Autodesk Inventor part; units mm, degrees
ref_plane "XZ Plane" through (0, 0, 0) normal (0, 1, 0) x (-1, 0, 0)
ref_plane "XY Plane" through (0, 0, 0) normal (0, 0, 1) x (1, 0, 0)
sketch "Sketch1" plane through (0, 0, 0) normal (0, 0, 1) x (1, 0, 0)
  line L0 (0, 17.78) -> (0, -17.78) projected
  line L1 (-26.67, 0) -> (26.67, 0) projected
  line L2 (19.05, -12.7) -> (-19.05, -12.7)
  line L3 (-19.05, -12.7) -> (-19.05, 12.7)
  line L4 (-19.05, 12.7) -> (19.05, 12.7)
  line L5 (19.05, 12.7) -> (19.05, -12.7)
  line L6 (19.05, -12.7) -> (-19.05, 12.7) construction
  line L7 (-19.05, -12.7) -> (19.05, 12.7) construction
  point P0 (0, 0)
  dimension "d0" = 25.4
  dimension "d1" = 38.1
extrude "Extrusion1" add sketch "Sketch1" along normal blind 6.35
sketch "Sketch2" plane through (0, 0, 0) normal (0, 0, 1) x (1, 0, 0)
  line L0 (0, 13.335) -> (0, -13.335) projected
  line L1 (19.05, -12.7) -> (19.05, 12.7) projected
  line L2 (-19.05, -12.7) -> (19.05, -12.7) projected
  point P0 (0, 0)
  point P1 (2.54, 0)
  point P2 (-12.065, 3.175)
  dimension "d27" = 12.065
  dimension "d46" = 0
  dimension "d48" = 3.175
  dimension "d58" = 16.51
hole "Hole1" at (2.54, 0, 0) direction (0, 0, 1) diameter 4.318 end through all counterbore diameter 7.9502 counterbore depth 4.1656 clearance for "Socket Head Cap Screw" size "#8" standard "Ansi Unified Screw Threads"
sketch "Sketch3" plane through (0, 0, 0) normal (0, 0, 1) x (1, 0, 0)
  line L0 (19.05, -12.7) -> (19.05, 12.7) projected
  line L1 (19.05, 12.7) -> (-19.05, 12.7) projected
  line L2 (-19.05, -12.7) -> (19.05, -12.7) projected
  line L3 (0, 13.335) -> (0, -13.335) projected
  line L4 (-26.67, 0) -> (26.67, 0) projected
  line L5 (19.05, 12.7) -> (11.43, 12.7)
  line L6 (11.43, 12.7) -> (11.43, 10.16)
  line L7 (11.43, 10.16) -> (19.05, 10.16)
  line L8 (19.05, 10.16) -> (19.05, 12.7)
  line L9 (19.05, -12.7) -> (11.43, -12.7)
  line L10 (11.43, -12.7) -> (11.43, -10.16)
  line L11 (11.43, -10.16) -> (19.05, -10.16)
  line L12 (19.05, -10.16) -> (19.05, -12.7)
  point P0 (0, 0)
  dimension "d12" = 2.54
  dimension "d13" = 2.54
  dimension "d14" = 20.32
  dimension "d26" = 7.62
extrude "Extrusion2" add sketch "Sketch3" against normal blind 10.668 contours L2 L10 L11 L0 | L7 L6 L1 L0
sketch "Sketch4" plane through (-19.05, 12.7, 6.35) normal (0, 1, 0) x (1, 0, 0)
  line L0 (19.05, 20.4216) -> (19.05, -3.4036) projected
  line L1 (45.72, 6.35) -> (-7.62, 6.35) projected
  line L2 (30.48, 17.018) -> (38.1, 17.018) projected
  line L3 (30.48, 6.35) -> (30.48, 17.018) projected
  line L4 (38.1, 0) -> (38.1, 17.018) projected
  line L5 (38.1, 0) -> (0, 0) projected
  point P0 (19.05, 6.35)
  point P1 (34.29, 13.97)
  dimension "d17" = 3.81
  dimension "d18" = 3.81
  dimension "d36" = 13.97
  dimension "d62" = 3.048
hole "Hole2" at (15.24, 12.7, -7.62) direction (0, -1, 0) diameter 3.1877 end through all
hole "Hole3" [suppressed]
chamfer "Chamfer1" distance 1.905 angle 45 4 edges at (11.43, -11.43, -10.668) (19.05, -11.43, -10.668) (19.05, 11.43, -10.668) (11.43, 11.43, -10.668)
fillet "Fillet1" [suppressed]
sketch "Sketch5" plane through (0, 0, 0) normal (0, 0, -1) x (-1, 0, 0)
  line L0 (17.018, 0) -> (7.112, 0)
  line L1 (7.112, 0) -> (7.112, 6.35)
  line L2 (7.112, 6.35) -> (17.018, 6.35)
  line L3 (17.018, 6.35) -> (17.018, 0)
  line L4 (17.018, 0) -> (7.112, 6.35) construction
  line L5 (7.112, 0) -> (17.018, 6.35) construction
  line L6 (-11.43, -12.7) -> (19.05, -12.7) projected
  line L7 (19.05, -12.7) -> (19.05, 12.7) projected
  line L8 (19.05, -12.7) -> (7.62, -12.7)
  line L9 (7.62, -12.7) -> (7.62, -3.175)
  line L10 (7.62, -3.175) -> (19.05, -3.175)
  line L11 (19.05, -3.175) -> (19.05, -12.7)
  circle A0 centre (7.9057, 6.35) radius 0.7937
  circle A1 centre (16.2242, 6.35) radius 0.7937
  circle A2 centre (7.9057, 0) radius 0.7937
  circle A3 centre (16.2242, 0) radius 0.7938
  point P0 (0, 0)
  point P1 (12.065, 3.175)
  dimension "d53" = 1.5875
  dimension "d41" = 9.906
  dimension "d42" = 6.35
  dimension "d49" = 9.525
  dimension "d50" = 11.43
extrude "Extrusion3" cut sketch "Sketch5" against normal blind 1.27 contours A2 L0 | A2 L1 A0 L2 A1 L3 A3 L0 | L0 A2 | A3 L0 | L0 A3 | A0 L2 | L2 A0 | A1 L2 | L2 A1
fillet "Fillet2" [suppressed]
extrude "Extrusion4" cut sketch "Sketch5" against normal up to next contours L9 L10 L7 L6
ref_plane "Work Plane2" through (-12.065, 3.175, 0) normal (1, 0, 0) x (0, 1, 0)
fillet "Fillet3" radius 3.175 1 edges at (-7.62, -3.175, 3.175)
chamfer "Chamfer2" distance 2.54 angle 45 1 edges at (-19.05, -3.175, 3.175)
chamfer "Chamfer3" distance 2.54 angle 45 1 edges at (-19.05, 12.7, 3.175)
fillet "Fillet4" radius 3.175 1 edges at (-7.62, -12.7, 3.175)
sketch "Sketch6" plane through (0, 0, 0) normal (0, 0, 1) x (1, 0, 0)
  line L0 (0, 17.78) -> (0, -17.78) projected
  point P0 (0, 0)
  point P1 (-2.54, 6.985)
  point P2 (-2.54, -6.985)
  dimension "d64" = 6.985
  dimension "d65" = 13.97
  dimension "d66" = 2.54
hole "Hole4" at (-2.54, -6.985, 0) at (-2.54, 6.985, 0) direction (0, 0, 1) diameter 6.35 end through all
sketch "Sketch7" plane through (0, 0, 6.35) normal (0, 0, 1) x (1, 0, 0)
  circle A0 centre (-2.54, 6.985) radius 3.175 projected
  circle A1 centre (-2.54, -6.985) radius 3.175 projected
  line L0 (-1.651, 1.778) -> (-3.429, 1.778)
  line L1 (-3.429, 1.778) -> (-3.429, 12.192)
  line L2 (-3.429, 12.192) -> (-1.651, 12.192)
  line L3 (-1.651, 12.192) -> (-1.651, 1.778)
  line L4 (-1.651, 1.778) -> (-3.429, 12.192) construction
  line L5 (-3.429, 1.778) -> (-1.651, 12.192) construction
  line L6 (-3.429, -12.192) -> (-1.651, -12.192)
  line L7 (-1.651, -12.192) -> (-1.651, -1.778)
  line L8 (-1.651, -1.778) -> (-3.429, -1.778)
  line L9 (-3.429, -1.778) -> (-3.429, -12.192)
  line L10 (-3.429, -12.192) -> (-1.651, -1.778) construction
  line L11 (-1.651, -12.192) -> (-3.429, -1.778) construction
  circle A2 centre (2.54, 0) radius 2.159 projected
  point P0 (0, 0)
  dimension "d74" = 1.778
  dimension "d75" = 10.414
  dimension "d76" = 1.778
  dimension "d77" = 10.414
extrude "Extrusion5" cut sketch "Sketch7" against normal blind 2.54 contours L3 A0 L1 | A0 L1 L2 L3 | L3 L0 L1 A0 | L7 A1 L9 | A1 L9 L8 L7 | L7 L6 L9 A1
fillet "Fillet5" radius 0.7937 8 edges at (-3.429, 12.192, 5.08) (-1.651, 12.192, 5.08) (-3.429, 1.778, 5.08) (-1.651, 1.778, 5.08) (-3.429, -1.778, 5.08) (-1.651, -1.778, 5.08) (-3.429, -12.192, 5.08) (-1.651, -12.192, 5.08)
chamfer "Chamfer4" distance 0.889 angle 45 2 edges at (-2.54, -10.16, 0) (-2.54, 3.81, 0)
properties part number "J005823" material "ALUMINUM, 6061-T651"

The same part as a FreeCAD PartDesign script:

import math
import FreeCAD as App
import Part
import Sketcher
Q = App.Units.Quantity


def edges_at(feature, points):
    """Names of the edges that pass closest to the given points."""
    edges = feature.Shape.Edges
    near = lambda p: min(range(len(edges)), key=lambda i: edges[i].distToShape(Part.Vertex(*p))[0])
    return sorted({f"Edge{near(p) + 1}" for p in points})


def add_polygon(sketch, points):
    """Adds a closed chain of lines whose ends are joined by coincident constraints."""
    first, n = sketch.GeometryCount, len(points)
    for a, b in zip(points, points[1:] + points[:1]):
        sketch.addGeometry(Part.LineSegment(App.Vector(*a, 0), App.Vector(*b, 0)), False)
    for i in range(n):
        sketch.addConstraint(Sketcher.Constraint("Coincident", first + i, 2, first + (i + 1) % n, 1))

doc = App.newDocument("Part")
body = doc.addObject("PartDesign::Body", "Body")

# Sketch on XY plane
sketch1 = body.newObject("Sketcher::SketchObject", "Sketch")
sketch1.AttachmentSupport = (doc.getObject("XY_Plane"), [""])
sketch1.MapMode = "FlatFace"
add_polygon(sketch1, [(19, 13), (-19, 13), (-19, -13), (19, -13)])  # lines 0-3
sketch1.addConstraint(Sketcher.Constraint("Horizontal", 0))
sketch1.addConstraint(Sketcher.Constraint("Vertical", 1))
sketch1.addConstraint(Sketcher.Constraint("Horizontal", 2))
sketch1.addConstraint(Sketcher.Constraint("Vertical", 3))
sketch1.addConstraint(Sketcher.Constraint("Symmetric", 0, 2, 2, 2, -1, 1))
sketch1.addConstraint(Sketcher.Constraint("DistanceY", 1, 2, 1, 1, Q("1 in")))
sketch1.addConstraint(Sketcher.Constraint("DistanceX", 0, 2, 0, 1, Q("1.5 in")))
pad1 = body.newObject("PartDesign::Pad", "Pad")
pad1.Profile = sketch1
pad1.Length = Q("0.25 in")

# Sketch on XY plane
sketch2 = body.newObject("Sketcher::SketchObject", "Sketch001")
sketch2.AttachmentSupport = (doc.getObject("XY_Plane"), [""])
sketch2.MapMode = "FlatFace"
sketch2.addGeometry(Part.Circle(App.Vector(2.5, 0, 0), App.Vector(0, 0, 1), 2.2), False)
sketch2.addConstraint(Sketcher.Constraint("PointOnObject", 0, 3, -1))
sketch2.addConstraint(Sketcher.Constraint("Diameter", 0, Q("0.17 in")))
sketch2.addConstraint(Sketcher.Constraint("DistanceX", -1, 1, 0, 3, Q("0.1 in")))
doc.recompute()
hole = body.newObject("PartDesign::Hole", "Hole")
hole.Profile = sketch2
hole.ThreadType = "None"
hole.Diameter = Q("0.17 in")
hole.DepthType = "ThroughAll"
hole.HoleCutType = "Counterbore"
hole.HoleCutDiameter = Q("0.313 in")
hole.HoleCutDepth = Q("0.164 in")
hole.Reversed = True

# Sketch on XY plane
sketch3 = body.newObject("Sketcher::SketchObject", "Sketch002")
sketch3.AttachmentSupport = (doc.getObject("XY_Plane"), [""])
sketch3.MapMode = "FlatFace"
add_polygon(sketch3, [(11.4, -12.7), (19.1, -12.7), (19.1, -10.2), (11.4, -10.2)])  # lines 0-3
add_polygon(sketch3, [(11.4, 10.2), (19.1, 10.2), (19.1, 12.7), (11.4, 12.7)])  # lines 4-7
sketch3.addConstraint(Sketcher.Constraint("Horizontal", 0))
sketch3.addConstraint(Sketcher.Constraint("Vertical", 1))
sketch3.addConstraint(Sketcher.Constraint("Horizontal", 2))
sketch3.addConstraint(Sketcher.Constraint("Vertical", 3))
sketch3.addConstraint(Sketcher.Constraint("Horizontal", 4))
sketch3.addConstraint(Sketcher.Constraint("Vertical", 5))
sketch3.addConstraint(Sketcher.Constraint("Horizontal", 6))
sketch3.addConstraint(Sketcher.Constraint("Vertical", 7))
sketch3.addConstraint(Sketcher.Constraint("Symmetric", 1, 2, 4, 2, -1))
sketch3.addConstraint(Sketcher.Constraint("Symmetric", 3, 2, 6, 2, -1))
sketch3.addConstraint(Sketcher.Constraint("DistanceX", 0, 1, 0, 2, Q("0.3 in")))
sketch3.addConstraint(Sketcher.Constraint("DistanceY", 1, 1, 1, 2, Q("0.1 in")))
sketch3.addConstraint(Sketcher.Constraint("DistanceY", 1, 2, 4, 2, Q("0.8 in")))
sketch3.addConstraint(Sketcher.Constraint("DistanceX", -1, 1, 0, 2, Q("0.75 in")))
pad2 = body.newObject("PartDesign::Pad", "Pad001")
pad2.Profile = sketch3
pad2.Length = Q("0.42 in")
pad2.Reversed = True

# Sketch on XZ plane
sketch4 = body.newObject("Sketcher::SketchObject", "Sketch003")
sketch4.AttachmentSupport = (doc.getObject("XZ_Plane"), [""])
sketch4.MapMode = "FlatFace"
sketch4.AttachmentOffset = App.Placement(App.Vector(0, 0, -0.5 * 25.4), App.Rotation())
sketch4.addGeometry(Part.Circle(App.Vector(15.2, -7.6, 0), App.Vector(0, 0, 1), 1.6), False)
sketch4.addConstraint(Sketcher.Constraint("Diameter", 0, Q("0.1255 in")))
sketch4.addConstraint(Sketcher.Constraint("DistanceX", -1, 1, 0, 3, Q("0.6 in")))
sketch4.addConstraint(Sketcher.Constraint("DistanceY", 0, 3, -1, 1, Q("0.3 in")))
doc.recompute()
hole2 = body.newObject("PartDesign::Hole", "Hole001")
hole2.Profile = sketch4
hole2.ThreadType = "None"
hole2.Diameter = Q("0.1255 in")
hole2.DepthType = "ThroughAll"
hole2.Reversed = True
doc.recompute()

chamfer = body.newObject("PartDesign::Chamfer", "Chamfer")
chamfer.Base = (hole2, edges_at(hole2, [
    (11.43, -11.43, -10.668),
    (19.05, -11.43, -10.668),
    (19.05, 11.43, -10.668),
    (11.43, 11.43, -10.668),
]))
chamfer.Size = Q("0.075 in")

# Sketch on XY plane
sketch5 = body.newObject("Sketcher::SketchObject", "Sketch004")
sketch5.AttachmentSupport = (doc.getObject("XY_Plane"), [""])
sketch5.MapMode = "FlatFace"
sketch5.addGeometry(Part.ArcOfCircle(Part.Circle(App.Vector(-7.9, 0, 0), App.Vector(0, 0, 1), 0.8), math.radians(180), math.radians(360)), False)
sketch5.addGeometry(Part.LineSegment(App.Vector(-8.7, 0, 0), App.Vector(-15.4, 0, 0)), False)
sketch5.addGeometry(Part.ArcOfCircle(Part.Circle(App.Vector(-16.2, 0, 0), App.Vector(0, 0, 1), 0.8), math.radians(180), math.radians(360)), False)
sketch5.addGeometry(Part.LineSegment(App.Vector(-17, 0, 0), App.Vector(-17, 6.3, 0)), False)
sketch5.addGeometry(Part.ArcOfCircle(Part.Circle(App.Vector(-16.2, 6.3, 0), App.Vector(0, 0, 1), 0.8), math.radians(0), math.radians(180)), False)
sketch5.addGeometry(Part.LineSegment(App.Vector(-15.4, 6.3, 0), App.Vector(-8.7, 6.3, 0)), False)
sketch5.addGeometry(Part.ArcOfCircle(Part.Circle(App.Vector(-7.9, 6.3, 0), App.Vector(0, 0, 1), 0.8), math.radians(0), math.radians(180)), False)
sketch5.addGeometry(Part.LineSegment(App.Vector(-7.1, 6.3, 0), App.Vector(-7.1, 0, 0)), False)
sketch5.addConstraint(Sketcher.Constraint("Coincident", 0, 1, 1, 1))
sketch5.addConstraint(Sketcher.Constraint("Coincident", 1, 2, 2, 2))
sketch5.addConstraint(Sketcher.Constraint("Tangent", 2, 1, 3, 1))
sketch5.addConstraint(Sketcher.Constraint("Tangent", 3, 2, 4, 2))
sketch5.addConstraint(Sketcher.Constraint("Coincident", 4, 1, 5, 1))
sketch5.addConstraint(Sketcher.Constraint("Coincident", 5, 2, 6, 2))
sketch5.addConstraint(Sketcher.Constraint("Tangent", 6, 1, 7, 1))
sketch5.addConstraint(Sketcher.Constraint("Tangent", 7, 2, 0, 2))
sketch5.addConstraint(Sketcher.Constraint("Horizontal", 1))
sketch5.addConstraint(Sketcher.Constraint("Vertical", 3))
sketch5.addConstraint(Sketcher.Constraint("Horizontal", 5))
sketch5.addConstraint(Sketcher.Constraint("Vertical", 7))
sketch5.addConstraint(Sketcher.Constraint("Equal", 0, 2))
sketch5.addConstraint(Sketcher.Constraint("Equal", 2, 4))
sketch5.addConstraint(Sketcher.Constraint("Equal", 4, 6))
sketch5.addConstraint(Sketcher.Constraint("PointOnObject", 0, 3, -1))
sketch5.addConstraint(Sketcher.Constraint("PointOnObject", 2, 3, -1))
sketch5.addConstraint(Sketcher.Constraint("PointOnObject", 0, 1, -1))
sketch5.addConstraint(Sketcher.Constraint("Horizontal", 4, 3, 6, 3))
sketch5.addConstraint(Sketcher.Constraint("Horizontal", 3, 2, 4, 1))
sketch5.addConstraint(Sketcher.Constraint("Radius", 0, Q("0.031248 in")))
sketch5.addConstraint(Sketcher.Constraint("DistanceY", 3, 1, 3, 2, Q("0.25 in")))
sketch5.addConstraint(Sketcher.Constraint("DistanceX", 1, 2, 1, 1, Q("0.265 in")))
sketch5.addConstraint(Sketcher.Constraint("DistanceX", 2, 1, -1, 1, Q("0.67 in")))
pocket1 = body.newObject("PartDesign::Pocket", "Pocket")
pocket1.Profile = sketch5
pocket1.Length = Q("0.05 in")
pocket1.Reversed = True

# Sketch on XY plane
sketch6 = body.newObject("Sketcher::SketchObject", "Sketch005")
sketch6.AttachmentSupport = (doc.getObject("XY_Plane"), [""])
sketch6.MapMode = "FlatFace"
add_polygon(sketch6, [(-8, -3), (-8, -13), (-19, -13), (-19, -3)])  # lines 0-3
sketch6.addConstraint(Sketcher.Constraint("Vertical", 0))
sketch6.addConstraint(Sketcher.Constraint("Horizontal", 1))
sketch6.addConstraint(Sketcher.Constraint("Vertical", 2))
sketch6.addConstraint(Sketcher.Constraint("Horizontal", 3))
sketch6.addConstraint(Sketcher.Constraint("DistanceX", 1, 2, 1, 1, Q("0.45 in")))
sketch6.addConstraint(Sketcher.Constraint("DistanceY", 0, 2, 0, 1, Q("0.375 in")))
sketch6.addConstraint(Sketcher.Constraint("DistanceX", 0, 2, -1, 1, Q("0.3 in")))
sketch6.addConstraint(Sketcher.Constraint("DistanceY", 0, 2, -1, 1, Q("0.5 in")))
pocket2 = body.newObject("PartDesign::Pocket", "Pocket001")
pocket2.Profile = sketch6
pocket2.Type = "UpToFirst"
pocket2.Reversed = True
doc.recompute()

fillet = body.newObject("PartDesign::Fillet", "Fillet")
fillet.Base = (pocket2, edges_at(pocket2, [(-7.62, -3.175, 3.175)]))
fillet.Radius = Q("0.125 in")
doc.recompute()

chamfer2 = body.newObject("PartDesign::Chamfer", "Chamfer001")
chamfer2.Base = (fillet, edges_at(fillet, [(-19.05, -3.175, 3.175)]))
chamfer2.Size = Q("0.1 in")
doc.recompute()

chamfer3 = body.newObject("PartDesign::Chamfer", "Chamfer002")
chamfer3.Base = (chamfer2, edges_at(chamfer2, [(-19.05, 12.7, 3.175)]))
chamfer3.Size = Q("0.1 in")
doc.recompute()

fillet2 = body.newObject("PartDesign::Fillet", "Fillet001")
fillet2.Base = (chamfer3, edges_at(chamfer3, [(-7.62, -12.7, 3.175)]))
fillet2.Radius = Q("0.125 in")

# Sketch on XY plane
sketch7 = body.newObject("Sketcher::SketchObject", "Sketch006")
sketch7.AttachmentSupport = (doc.getObject("XY_Plane"), [""])
sketch7.MapMode = "FlatFace"
sketch7.addGeometry(Part.Circle(App.Vector(-2.5, -7, 0), App.Vector(0, 0, 1), 3.2), False)
sketch7.addGeometry(Part.Circle(App.Vector(-2.5, 7, 0), App.Vector(0, 0, 1), 3.2), False)
sketch7.addConstraint(Sketcher.Constraint("Equal", 0, 1))
sketch7.addConstraint(Sketcher.Constraint("Symmetric", 0, 3, 1, 3, -1))
sketch7.addConstraint(Sketcher.Constraint("Diameter", 0, Q("0.25 in")))
sketch7.addConstraint(Sketcher.Constraint("DistanceX", 0, 3, -1, 1, Q("0.1 in")))
sketch7.addConstraint(Sketcher.Constraint("DistanceY", 0, 3, 1, 3, Q("0.55 in")))
doc.recompute()
hole3 = body.newObject("PartDesign::Hole", "Hole002")
hole3.Profile = sketch7
hole3.ThreadType = "None"
hole3.Diameter = Q("0.25 in")
hole3.DepthType = "ThroughAll"
hole3.Reversed = True

# Sketch on XY plane
sketch8 = body.newObject("Sketcher::SketchObject", "Sketch007")
sketch8.AttachmentSupport = (doc.getObject("XY_Plane"), [""])
sketch8.MapMode = "FlatFace"
sketch8.AttachmentOffset = App.Placement(App.Vector(0, 0, 0.25 * 25.4), App.Rotation())
add_polygon(sketch8, [(-1.7, 12.2), (-3.4, 12.2), (-3.4, 1.8), (-1.7, 1.8)])  # lines 0-3
add_polygon(sketch8, [(-1.7, -1.8), (-3.4, -1.8), (-3.4, -12.2), (-1.7, -12.2)])  # lines 4-7
sketch8.addConstraint(Sketcher.Constraint("Horizontal", 0))
sketch8.addConstraint(Sketcher.Constraint("Vertical", 1))
sketch8.addConstraint(Sketcher.Constraint("Horizontal", 2))
sketch8.addConstraint(Sketcher.Constraint("Vertical", 3))
sketch8.addConstraint(Sketcher.Constraint("Horizontal", 4))
sketch8.addConstraint(Sketcher.Constraint("Vertical", 5))
sketch8.addConstraint(Sketcher.Constraint("Horizontal", 6))
sketch8.addConstraint(Sketcher.Constraint("Vertical", 7))
sketch8.addConstraint(Sketcher.Constraint("Symmetric", 1, 2, 4, 2, -1))
sketch8.addConstraint(Sketcher.Constraint("Symmetric", 3, 2, 6, 2, -1))
sketch8.addConstraint(Sketcher.Constraint("DistanceX", 0, 2, 0, 1, Q("0.07 in")))
sketch8.addConstraint(Sketcher.Constraint("DistanceY", 1, 2, 1, 1, Q("0.41 in")))
sketch8.addConstraint(Sketcher.Constraint("DistanceY", -1, 1, 1, 2, Q("0.07 in")))
sketch8.addConstraint(Sketcher.Constraint("DistanceX", 0, 2, -1, 1, Q("0.135 in")))
pocket3 = body.newObject("PartDesign::Pocket", "Pocket002")
pocket3.Profile = sketch8
pocket3.Length = Q("0.1 in")
doc.recompute()

fillet3 = body.newObject("PartDesign::Fillet", "Fillet002")
fillet3.Base = (pocket3, edges_at(pocket3, [
    (-3.429, 12.192, 5.08),
    (-1.651, 12.192, 5.08),
    (-3.429, 1.778, 5.08),
    (-1.651, 1.778, 5.08),
    (-3.429, -1.778, 5.08),
    (-1.651, -1.778, 5.08),
    (-3.429, -12.192, 5.08),
    (-1.651, -12.192, 5.08),
]))
fillet3.Radius = Q("0.031248 in")
doc.recompute()

chamfer4 = body.newObject("PartDesign::Chamfer", "Chamfer003")
chamfer4.Base = (fillet3, edges_at(fillet3, [(-2.54, -10.16, 0), (-2.54, 3.81, 0)]))
chamfer4.Size = Q("0.035 in")

doc.recompute()
